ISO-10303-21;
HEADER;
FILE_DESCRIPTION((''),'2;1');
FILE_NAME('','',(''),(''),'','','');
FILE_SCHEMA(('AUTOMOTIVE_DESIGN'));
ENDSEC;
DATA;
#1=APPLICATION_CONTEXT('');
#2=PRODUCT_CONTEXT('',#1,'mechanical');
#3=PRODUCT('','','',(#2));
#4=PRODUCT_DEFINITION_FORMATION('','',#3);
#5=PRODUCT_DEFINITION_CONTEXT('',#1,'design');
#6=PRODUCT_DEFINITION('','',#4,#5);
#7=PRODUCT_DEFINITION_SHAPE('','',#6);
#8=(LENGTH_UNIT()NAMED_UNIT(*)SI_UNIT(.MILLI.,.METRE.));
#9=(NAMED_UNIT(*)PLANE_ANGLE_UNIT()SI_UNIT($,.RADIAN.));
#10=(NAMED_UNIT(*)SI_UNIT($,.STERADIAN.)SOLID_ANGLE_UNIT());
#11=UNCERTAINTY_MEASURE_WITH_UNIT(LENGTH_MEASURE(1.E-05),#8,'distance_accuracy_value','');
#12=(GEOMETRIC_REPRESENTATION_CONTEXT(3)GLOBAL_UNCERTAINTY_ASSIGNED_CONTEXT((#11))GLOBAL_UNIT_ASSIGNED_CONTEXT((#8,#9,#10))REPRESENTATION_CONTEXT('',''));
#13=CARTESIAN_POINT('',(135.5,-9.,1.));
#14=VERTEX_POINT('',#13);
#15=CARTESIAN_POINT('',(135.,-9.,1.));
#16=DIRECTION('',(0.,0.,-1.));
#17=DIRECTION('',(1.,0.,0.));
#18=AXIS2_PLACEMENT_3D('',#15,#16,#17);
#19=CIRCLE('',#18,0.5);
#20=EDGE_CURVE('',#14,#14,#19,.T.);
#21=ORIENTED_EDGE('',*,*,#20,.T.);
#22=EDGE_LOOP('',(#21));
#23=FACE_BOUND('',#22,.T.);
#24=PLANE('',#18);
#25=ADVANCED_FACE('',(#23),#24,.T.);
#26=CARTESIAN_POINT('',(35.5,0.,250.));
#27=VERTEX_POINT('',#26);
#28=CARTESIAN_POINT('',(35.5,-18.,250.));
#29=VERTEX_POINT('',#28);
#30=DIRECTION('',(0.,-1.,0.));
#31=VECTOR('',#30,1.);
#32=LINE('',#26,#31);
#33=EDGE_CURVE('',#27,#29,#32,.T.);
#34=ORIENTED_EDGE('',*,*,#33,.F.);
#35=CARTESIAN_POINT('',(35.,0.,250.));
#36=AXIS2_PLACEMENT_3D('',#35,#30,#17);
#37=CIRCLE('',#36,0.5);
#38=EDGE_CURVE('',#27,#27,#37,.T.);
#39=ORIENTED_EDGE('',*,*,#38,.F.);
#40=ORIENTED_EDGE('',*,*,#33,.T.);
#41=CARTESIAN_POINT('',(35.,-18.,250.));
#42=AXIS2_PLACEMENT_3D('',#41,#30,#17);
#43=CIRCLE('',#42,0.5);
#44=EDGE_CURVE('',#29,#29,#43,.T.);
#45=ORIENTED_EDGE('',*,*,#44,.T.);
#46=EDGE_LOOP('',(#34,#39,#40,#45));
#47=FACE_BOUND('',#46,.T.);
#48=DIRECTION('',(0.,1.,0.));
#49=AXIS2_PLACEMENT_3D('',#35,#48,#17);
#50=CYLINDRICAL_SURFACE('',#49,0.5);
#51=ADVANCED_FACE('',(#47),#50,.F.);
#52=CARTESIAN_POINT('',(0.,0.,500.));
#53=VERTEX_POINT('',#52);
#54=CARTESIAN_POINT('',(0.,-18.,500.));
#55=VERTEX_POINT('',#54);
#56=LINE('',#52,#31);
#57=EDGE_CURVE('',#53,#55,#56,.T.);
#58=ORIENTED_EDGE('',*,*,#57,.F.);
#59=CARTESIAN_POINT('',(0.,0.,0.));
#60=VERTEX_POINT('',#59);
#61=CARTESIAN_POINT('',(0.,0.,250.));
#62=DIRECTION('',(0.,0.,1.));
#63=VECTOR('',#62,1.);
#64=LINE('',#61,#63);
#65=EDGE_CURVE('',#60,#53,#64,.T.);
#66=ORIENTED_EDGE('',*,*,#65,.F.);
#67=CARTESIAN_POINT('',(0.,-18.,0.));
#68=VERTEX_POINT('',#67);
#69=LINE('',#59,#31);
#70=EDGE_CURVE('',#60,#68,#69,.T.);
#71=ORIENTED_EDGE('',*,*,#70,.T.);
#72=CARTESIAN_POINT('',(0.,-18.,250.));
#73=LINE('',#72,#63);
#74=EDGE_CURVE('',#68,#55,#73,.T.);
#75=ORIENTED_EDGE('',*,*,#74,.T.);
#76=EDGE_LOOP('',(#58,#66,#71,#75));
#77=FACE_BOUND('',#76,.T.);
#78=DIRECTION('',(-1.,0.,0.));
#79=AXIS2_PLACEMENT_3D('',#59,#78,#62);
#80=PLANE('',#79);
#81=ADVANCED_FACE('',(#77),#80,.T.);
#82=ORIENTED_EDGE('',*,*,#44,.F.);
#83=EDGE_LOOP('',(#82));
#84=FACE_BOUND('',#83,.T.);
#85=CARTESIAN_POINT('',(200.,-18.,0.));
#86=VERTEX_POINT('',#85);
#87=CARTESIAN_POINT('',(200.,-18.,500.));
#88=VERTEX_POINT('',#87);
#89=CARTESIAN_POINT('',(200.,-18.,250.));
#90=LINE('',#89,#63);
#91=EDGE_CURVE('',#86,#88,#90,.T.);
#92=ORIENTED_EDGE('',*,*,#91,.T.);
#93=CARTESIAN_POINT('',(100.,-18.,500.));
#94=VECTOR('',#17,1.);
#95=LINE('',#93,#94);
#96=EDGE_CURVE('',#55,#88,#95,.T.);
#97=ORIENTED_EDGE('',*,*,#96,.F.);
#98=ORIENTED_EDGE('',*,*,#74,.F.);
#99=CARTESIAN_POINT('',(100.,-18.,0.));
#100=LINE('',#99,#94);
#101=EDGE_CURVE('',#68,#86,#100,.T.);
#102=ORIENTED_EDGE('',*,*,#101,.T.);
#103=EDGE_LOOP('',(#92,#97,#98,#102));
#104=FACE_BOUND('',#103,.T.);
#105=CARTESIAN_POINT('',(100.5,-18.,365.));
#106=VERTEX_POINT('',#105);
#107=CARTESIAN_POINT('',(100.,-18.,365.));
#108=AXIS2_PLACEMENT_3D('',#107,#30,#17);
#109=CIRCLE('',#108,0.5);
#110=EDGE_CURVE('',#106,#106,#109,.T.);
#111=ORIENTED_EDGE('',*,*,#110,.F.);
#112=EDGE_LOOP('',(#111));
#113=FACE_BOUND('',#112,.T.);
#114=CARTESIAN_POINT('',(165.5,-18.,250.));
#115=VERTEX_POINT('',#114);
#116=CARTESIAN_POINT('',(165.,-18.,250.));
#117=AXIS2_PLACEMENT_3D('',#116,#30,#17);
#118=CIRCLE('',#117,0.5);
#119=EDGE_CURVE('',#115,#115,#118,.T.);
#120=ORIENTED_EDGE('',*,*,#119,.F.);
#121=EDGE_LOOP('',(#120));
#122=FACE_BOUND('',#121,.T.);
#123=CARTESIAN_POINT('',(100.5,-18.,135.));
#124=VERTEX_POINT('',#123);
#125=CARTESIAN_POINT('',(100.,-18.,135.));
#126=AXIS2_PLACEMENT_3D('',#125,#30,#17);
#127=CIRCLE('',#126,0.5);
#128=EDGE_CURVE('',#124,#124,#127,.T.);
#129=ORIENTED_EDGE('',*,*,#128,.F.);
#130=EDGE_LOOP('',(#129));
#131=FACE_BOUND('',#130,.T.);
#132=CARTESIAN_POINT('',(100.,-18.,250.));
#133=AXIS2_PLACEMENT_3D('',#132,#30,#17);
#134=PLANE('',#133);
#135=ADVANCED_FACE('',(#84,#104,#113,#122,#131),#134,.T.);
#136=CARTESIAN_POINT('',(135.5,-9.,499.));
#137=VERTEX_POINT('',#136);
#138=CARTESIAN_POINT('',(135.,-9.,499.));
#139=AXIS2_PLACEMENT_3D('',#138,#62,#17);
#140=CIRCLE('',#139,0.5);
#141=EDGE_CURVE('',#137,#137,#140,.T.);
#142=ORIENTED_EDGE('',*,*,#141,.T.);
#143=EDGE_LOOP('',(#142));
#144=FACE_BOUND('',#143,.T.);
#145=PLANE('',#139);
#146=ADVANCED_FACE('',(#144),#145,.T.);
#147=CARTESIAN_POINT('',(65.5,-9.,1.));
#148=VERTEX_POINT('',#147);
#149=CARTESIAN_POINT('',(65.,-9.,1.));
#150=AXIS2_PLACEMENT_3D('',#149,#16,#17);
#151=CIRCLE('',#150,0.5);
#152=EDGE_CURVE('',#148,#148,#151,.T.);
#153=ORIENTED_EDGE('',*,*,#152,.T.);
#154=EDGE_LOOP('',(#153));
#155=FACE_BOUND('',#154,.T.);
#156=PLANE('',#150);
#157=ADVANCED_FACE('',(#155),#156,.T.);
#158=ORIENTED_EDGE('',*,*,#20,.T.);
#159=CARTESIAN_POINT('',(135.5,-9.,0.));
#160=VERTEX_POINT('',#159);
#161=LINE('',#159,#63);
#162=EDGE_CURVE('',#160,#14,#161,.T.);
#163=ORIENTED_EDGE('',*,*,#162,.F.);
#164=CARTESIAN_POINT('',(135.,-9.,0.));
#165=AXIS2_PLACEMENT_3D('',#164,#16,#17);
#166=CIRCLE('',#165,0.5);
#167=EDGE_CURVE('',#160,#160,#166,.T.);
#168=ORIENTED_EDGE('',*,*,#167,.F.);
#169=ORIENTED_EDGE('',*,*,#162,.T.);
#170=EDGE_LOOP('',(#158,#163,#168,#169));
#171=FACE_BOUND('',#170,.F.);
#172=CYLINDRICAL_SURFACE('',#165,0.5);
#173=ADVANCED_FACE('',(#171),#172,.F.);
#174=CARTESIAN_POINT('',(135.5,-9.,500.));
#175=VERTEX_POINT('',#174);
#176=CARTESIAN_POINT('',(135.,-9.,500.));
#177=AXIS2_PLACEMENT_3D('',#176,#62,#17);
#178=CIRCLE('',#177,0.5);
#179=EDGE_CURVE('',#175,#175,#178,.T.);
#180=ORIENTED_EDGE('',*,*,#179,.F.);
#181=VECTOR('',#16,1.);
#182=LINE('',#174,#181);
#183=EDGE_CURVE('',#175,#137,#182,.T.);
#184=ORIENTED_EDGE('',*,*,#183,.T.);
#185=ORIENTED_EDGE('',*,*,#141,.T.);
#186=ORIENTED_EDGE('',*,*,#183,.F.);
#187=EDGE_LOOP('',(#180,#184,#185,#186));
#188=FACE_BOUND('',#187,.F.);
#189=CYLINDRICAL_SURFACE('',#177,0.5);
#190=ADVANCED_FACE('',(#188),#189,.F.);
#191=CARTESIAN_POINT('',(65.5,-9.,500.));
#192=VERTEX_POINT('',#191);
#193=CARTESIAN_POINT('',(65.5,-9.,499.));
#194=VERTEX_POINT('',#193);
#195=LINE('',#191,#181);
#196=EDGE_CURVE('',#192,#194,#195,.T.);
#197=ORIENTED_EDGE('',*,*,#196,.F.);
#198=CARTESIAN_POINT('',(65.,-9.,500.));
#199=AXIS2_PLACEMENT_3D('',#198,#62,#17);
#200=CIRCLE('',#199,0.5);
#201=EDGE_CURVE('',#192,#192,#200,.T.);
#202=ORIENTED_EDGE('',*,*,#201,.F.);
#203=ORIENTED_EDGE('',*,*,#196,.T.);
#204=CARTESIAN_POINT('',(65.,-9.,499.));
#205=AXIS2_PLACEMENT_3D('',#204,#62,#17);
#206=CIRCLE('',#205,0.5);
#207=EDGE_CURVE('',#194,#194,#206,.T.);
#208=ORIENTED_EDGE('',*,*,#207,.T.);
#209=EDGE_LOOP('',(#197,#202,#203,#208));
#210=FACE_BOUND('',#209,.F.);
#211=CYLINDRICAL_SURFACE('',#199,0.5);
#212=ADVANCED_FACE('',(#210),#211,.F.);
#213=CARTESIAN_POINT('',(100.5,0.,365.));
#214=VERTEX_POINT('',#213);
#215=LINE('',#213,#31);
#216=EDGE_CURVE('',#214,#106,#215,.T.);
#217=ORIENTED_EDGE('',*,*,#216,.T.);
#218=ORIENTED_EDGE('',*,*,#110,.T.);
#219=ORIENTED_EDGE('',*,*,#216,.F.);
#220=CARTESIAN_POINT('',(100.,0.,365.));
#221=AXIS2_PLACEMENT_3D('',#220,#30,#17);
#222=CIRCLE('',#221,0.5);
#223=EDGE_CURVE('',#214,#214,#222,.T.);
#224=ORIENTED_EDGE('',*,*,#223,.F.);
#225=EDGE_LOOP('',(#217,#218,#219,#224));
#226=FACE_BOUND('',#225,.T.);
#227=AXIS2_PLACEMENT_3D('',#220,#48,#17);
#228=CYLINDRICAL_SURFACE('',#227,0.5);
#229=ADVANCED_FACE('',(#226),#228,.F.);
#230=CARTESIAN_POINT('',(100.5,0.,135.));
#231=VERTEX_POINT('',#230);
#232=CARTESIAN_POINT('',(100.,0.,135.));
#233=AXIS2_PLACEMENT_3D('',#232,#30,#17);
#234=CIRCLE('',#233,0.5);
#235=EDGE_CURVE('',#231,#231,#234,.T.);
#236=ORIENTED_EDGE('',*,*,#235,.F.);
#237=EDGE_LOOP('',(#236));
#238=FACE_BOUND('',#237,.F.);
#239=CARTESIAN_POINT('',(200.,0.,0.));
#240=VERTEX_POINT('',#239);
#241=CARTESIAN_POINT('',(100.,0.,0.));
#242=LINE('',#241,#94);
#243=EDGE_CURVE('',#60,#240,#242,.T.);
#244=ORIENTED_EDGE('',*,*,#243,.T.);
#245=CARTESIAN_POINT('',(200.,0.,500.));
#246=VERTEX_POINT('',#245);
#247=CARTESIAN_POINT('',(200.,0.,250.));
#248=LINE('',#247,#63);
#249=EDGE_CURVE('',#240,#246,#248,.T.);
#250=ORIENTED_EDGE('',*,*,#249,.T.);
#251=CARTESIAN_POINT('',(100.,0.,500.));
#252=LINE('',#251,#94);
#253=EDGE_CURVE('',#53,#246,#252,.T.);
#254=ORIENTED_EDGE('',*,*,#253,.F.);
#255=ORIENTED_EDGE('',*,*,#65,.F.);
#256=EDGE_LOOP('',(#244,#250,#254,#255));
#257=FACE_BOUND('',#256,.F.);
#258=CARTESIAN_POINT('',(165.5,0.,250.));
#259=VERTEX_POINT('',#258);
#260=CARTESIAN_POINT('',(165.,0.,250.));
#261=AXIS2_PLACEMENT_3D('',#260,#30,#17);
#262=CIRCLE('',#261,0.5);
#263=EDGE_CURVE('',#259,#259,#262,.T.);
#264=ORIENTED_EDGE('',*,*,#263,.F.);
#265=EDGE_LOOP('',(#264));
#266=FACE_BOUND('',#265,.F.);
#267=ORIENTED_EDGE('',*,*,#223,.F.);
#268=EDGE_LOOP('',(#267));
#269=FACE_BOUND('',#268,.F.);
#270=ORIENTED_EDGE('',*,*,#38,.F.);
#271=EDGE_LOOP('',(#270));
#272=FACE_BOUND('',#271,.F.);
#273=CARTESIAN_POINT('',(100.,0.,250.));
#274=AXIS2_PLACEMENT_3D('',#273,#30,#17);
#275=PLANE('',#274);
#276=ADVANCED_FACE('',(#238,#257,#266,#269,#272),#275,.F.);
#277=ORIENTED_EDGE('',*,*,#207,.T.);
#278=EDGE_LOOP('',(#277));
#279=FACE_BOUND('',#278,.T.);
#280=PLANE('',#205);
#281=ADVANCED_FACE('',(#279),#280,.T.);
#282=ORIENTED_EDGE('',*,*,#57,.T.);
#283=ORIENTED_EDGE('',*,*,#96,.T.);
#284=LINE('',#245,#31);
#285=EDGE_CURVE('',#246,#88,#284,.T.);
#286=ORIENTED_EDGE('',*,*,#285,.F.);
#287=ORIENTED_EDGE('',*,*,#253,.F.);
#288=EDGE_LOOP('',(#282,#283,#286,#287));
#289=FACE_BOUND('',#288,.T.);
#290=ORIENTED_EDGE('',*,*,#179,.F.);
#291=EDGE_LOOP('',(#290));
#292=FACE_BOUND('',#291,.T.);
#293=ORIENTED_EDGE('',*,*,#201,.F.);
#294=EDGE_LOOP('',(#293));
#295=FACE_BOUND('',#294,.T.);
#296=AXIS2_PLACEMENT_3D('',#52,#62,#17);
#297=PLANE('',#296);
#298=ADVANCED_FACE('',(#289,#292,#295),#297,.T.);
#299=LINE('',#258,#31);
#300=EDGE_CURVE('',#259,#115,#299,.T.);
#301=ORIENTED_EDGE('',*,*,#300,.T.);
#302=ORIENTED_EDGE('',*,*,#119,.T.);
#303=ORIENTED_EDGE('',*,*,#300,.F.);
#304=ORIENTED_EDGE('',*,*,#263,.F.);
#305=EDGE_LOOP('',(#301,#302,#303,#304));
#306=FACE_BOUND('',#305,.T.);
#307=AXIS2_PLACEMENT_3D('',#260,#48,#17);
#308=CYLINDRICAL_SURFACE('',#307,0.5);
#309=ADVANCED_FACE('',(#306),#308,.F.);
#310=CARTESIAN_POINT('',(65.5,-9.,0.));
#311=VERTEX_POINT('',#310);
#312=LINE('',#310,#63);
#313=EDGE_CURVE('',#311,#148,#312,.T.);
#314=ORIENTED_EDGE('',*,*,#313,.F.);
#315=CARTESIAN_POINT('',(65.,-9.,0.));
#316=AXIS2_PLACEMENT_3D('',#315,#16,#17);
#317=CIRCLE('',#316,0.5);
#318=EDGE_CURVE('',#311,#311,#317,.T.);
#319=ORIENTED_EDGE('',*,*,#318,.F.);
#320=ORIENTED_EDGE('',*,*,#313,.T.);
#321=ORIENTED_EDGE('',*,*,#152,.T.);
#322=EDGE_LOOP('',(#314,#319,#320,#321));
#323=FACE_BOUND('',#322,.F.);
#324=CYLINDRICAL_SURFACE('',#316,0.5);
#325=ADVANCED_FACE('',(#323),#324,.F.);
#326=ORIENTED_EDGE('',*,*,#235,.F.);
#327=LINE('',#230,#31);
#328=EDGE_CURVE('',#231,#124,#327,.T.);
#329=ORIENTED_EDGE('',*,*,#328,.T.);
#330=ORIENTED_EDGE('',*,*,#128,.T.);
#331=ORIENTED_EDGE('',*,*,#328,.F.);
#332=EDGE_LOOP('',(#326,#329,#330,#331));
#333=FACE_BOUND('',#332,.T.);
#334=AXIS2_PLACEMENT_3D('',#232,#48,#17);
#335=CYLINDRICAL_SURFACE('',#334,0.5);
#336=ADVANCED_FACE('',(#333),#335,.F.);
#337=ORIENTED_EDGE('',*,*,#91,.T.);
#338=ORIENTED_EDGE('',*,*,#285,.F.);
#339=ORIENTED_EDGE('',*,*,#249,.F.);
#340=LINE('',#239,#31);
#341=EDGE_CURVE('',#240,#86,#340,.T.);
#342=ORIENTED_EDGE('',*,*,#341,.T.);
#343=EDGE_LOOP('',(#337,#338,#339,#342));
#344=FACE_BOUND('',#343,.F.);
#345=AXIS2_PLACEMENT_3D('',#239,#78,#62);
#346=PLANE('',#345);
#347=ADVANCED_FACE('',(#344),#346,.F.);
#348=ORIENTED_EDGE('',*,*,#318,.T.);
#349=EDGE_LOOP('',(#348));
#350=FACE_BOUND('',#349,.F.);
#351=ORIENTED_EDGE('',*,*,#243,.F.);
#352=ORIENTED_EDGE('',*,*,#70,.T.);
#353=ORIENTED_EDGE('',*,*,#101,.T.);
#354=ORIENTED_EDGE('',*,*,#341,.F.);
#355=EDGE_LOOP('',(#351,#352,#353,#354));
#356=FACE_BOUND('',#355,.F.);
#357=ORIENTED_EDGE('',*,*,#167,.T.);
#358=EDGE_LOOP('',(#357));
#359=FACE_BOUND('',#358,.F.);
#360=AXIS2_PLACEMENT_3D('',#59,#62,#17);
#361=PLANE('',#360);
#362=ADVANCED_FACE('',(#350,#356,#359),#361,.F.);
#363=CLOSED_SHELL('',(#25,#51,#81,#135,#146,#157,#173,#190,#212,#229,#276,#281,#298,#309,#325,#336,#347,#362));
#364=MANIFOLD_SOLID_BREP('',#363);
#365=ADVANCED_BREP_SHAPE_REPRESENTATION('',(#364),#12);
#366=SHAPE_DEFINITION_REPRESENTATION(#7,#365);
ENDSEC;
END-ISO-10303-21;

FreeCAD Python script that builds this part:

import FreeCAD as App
import Part
import Sketcher
Q = App.Units.Quantity

doc = App.newDocument("Part")
body = doc.addObject("PartDesign::Body", "Body")

sketch1 = body.newObject("Sketcher::SketchObject", "Sketch")
sketch1.AttachmentSupport = (doc.getObject("XZ_Plane"), [""])
sketch1.MapMode = "FlatFace"
sketch1.addGeometry([
    Part.LineSegment(App.Vector(0, 500, 0), App.Vector(0, 0, 0)),
    Part.LineSegment(App.Vector(0, 0, 0), App.Vector(200, 0, 0)),
    Part.LineSegment(App.Vector(200, 0, 0), App.Vector(200, 500, 0)),
    Part.LineSegment(App.Vector(200, 500, 0), App.Vector(0, 500, 0)),
    Part.Circle(App.Vector(100, 135, 0), App.Vector(0, 0, 1), 0.5),
    Part.Circle(App.Vector(35, 250, 0), App.Vector(0, 0, 1), 0.5),
    Part.Circle(App.Vector(165, 250, 0), App.Vector(0, 0, 1), 0.5),
    Part.Circle(App.Vector(100, 365, 0), App.Vector(0, 0, 1), 0.5),
], False)
sketch1.addConstraint([
    Sketcher.Constraint("Coincident", 0, 2, 1, 1),
    Sketcher.Constraint("Coincident", 1, 2, 2, 1),
    Sketcher.Constraint("Coincident", 2, 2, 3, 1),
    Sketcher.Constraint("Coincident", 3, 2, 0, 1),
    Sketcher.Constraint("Vertical", 0),
    Sketcher.Constraint("Horizontal", 1),
    Sketcher.Constraint("Vertical", 2),
    Sketcher.Constraint("Horizontal", 3),
    Sketcher.Constraint("Coincident", 0, 2, -1, 1),
    Sketcher.Constraint("Equal", 4, 5),
    Sketcher.Constraint("Equal", 5, 6),
    Sketcher.Constraint("Equal", 6, 7),
    Sketcher.Constraint("Horizontal", 5, 3, 6, 3),
    Sketcher.Constraint("Vertical", 4, 3, 7, 3),
    Sketcher.Constraint("Diameter", 4, Q("1 mm")),
    Sketcher.Constraint("DistanceX", 1, 1, 1, 2, Q("200 mm")),
    Sketcher.Constraint("DistanceY", 0, 2, 0, 1, Q("500 mm")),
    Sketcher.Constraint("DistanceX", -1, 1, 4, 3, Q("100 mm")),
    Sketcher.Constraint("DistanceY", -1, 1, 4, 3, Q("135 mm")),
    Sketcher.Constraint("DistanceX", -1, 1, 5, 3, Q("35 mm")),
    Sketcher.Constraint("DistanceY", -1, 1, 5, 3, Q("250 mm")),
    Sketcher.Constraint("DistanceX", -1, 1, 6, 3, Q("165 mm")),
    Sketcher.Constraint("DistanceY", -1, 1, 7, 3, Q("365 mm")),
])
pad1 = body.newObject("PartDesign::Pad", "Pad")
pad1.Profile = sketch1
pad1.Length = 18

sketch2 = body.newObject("Sketcher::SketchObject", "Sketch001")
sketch2.AttachmentSupport = (doc.getObject("XY_Plane"), [""])
sketch2.MapMode = "FlatFace"
sketch2.AttachmentOffset = App.Placement(App.Vector(0, 0, 500), App.Rotation())
sketch2.addGeometry([
    Part.Circle(App.Vector(65, -9, 0), App.Vector(0, 0, 1), 0.5),
    Part.Circle(App.Vector(135, -9, 0), App.Vector(0, 0, 1), 0.5),
], False)
sketch2.addConstraint([
    Sketcher.Constraint("Equal", 0, 1),
    Sketcher.Constraint("Horizontal", 0, 3, 1, 3),
    Sketcher.Constraint("Diameter", 0, Q("1 mm")),
    Sketcher.Constraint("DistanceX", -1, 1, 0, 3, Q("65 mm")),
    Sketcher.Constraint("DistanceY", 0, 3, -1, 1, Q("9 mm")),
    Sketcher.Constraint("DistanceX", -1, 1, 1, 3, Q("135 mm")),
])
pocket1 = body.newObject("PartDesign::Pocket", "Pocket")
pocket1.Profile = sketch2
pocket1.Length = 1

sketch3 = body.newObject("Sketcher::SketchObject", "Sketch002")
sketch3.AttachmentSupport = (doc.getObject("XY_Plane"), [""])
sketch3.MapMode = "FlatFace"
sketch3.addGeometry([
    Part.Circle(App.Vector(65, -9, 0), App.Vector(0, 0, 1), 0.5),
    Part.Circle(App.Vector(135, -9, 0), App.Vector(0, 0, 1), 0.5),
], False)
sketch3.addConstraint([
    Sketcher.Constraint("Equal", 0, 1),
    Sketcher.Constraint("Horizontal", 0, 3, 1, 3),
    Sketcher.Constraint("Diameter", 0, Q("1 mm")),
    Sketcher.Constraint("DistanceX", -1, 1, 0, 3, Q("65 mm")),
    Sketcher.Constraint("DistanceY", 0, 3, -1, 1, Q("9 mm")),
    Sketcher.Constraint("DistanceX", -1, 1, 1, 3, Q("135 mm")),
])
pocket2 = body.newObject("PartDesign::Pocket", "Pocket001")
pocket2.Profile = sketch3
pocket2.Length = 1
pocket2.Reversed = True

doc.recompute()
